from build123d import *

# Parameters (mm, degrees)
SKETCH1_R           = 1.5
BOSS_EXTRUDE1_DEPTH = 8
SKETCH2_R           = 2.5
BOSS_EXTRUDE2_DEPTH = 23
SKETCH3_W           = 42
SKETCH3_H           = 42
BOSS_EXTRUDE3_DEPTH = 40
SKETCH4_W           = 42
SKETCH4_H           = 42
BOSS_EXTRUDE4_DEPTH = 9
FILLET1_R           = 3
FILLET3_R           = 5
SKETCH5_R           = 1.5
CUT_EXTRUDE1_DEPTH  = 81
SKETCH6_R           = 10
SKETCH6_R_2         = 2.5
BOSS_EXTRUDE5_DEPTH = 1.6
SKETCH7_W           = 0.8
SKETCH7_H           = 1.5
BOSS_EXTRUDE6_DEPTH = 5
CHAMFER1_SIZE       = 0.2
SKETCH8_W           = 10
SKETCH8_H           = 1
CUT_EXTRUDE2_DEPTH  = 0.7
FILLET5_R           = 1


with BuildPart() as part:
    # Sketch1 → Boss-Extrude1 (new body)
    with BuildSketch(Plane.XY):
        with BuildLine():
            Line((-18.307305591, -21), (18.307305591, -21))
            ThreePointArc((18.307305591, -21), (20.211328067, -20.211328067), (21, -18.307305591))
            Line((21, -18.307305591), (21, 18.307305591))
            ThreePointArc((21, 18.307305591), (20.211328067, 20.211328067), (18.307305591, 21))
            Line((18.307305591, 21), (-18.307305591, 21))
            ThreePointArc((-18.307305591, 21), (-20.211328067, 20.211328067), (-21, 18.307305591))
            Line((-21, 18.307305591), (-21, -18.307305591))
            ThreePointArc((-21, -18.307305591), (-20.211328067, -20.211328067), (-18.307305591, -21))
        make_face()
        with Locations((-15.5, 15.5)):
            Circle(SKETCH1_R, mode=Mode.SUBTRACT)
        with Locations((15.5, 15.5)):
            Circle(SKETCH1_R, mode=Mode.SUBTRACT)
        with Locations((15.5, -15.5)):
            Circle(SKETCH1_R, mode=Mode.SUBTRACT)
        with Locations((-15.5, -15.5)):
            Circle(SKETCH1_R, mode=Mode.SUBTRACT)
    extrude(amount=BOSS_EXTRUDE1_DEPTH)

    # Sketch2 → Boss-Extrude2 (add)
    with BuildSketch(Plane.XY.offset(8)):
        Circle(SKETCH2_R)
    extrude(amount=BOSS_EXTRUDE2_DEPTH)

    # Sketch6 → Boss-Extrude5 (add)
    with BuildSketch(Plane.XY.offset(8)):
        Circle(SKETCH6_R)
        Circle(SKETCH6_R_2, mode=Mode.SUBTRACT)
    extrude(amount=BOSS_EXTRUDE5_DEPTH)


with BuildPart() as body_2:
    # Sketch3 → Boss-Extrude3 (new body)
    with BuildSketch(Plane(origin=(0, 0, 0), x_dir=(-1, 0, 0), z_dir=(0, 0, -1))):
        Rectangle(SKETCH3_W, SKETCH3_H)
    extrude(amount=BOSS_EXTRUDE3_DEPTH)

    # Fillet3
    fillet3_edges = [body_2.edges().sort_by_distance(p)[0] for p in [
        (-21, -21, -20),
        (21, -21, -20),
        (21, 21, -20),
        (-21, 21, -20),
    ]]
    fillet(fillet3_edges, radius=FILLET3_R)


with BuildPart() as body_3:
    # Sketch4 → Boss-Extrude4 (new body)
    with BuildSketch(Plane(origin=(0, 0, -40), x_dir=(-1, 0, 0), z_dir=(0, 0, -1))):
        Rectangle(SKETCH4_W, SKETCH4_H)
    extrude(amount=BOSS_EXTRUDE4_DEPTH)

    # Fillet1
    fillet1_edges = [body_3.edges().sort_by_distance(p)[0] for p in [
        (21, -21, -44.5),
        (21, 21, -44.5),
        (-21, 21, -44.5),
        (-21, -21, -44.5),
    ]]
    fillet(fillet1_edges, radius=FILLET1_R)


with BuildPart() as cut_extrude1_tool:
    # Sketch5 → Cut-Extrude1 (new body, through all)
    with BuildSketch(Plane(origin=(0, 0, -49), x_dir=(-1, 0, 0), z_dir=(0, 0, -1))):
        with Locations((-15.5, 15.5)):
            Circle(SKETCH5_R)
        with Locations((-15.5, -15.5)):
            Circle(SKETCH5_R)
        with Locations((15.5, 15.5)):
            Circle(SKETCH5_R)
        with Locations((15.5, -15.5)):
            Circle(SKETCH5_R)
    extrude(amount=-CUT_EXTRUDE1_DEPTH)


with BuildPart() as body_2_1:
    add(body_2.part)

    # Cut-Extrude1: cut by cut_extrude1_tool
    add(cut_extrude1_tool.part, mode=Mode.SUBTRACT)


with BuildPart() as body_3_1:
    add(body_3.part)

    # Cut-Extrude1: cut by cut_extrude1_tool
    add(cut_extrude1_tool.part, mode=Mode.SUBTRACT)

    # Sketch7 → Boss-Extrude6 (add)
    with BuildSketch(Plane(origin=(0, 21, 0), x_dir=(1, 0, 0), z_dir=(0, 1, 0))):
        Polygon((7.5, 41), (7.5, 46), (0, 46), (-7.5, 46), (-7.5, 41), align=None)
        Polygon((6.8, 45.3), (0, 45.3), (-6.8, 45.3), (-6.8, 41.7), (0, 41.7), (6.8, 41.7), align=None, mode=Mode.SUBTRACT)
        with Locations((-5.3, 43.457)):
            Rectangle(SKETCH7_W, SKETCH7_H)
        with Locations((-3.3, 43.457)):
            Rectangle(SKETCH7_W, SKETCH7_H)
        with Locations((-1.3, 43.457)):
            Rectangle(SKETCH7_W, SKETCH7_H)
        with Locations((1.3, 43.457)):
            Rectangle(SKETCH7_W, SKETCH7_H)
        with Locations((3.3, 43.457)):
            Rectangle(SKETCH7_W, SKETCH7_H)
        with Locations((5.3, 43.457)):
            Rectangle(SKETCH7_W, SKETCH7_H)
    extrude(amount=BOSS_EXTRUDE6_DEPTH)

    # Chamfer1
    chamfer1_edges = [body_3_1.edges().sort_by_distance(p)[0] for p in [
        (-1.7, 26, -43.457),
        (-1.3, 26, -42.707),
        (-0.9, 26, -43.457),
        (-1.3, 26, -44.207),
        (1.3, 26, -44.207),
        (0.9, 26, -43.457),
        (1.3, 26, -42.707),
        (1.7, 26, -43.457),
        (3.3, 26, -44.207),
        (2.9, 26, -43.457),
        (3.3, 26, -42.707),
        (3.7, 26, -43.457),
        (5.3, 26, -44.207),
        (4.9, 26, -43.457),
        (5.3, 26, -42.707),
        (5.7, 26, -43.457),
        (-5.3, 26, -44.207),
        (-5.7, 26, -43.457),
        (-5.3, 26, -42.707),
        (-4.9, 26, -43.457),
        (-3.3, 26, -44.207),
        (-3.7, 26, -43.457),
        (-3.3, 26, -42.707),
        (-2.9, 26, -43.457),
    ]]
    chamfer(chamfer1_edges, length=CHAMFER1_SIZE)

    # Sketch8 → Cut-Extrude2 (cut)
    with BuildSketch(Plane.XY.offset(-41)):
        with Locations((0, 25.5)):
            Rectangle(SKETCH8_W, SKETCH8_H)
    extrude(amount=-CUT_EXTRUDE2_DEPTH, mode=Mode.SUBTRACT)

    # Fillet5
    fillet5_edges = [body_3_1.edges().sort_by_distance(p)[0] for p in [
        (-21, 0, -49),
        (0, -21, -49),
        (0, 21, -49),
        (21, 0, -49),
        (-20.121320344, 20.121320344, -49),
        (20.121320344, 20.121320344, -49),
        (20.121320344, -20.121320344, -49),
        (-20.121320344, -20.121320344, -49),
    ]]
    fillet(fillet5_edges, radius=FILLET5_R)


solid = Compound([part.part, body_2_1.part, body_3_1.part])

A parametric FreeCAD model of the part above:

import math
import FreeCAD as App
import Part
import Sketcher

V = App.Vector


def edges_at(feature, points):
    """Names of the edges that pass closest to the given points."""
    edges = feature.Shape.Edges
    near = lambda p: min(range(len(edges)), key=lambda i: edges[i].distToShape(Part.Vertex(*p))[0])
    return sorted({f"Edge{near(p) + 1}" for p in points})

doc = App.newDocument("Part")
body = doc.addObject("PartDesign::Body", "Body")

# Sketch on XY plane
sketch1 = doc.addObject("Sketcher::SketchObject", "Sketch")
body.addObject(sketch1)
sketch1.AttachmentSupport = (doc.XY_Plane, [""])
sketch1.MapMode = "FlatFace"
sketch1.addGeometry([
    Part.LineSegment(V(-18.3, -21, 0), V(18.3, -21, 0)),  # 0
    Part.ArcOfCircle(Part.Circle(V(18.3, -18.3, 0), V(0, 0, 1), 2.7), math.radians(-90), math.radians(0)),  # 1
    Part.LineSegment(V(21, -18.3, 0), V(21, 18.3, 0)),  # 2
    Part.ArcOfCircle(Part.Circle(V(18.3, 18.3, 0), V(0, 0, 1), 2.7), math.radians(0), math.radians(90)),  # 3
    Part.LineSegment(V(18.3, 21, 0), V(-18.3, 21, 0)),  # 4
    Part.ArcOfCircle(Part.Circle(V(-18.3, 18.3, 0), V(0, 0, 1), 2.7), math.radians(90), math.radians(180)),  # 5
    Part.LineSegment(V(-21, 18.3, 0), V(-21, -18.3, 0)),  # 6
    Part.ArcOfCircle(Part.Circle(V(-18.3, -18.3, 0), V(0, 0, 1), 2.7), math.radians(-180), math.radians(-90)),  # 7
    Part.Circle(V(-15.5, -15.5, 0), V(0, 0, 1), 1.5),  # 8
    Part.Circle(V(15.5, -15.5, 0), V(0, 0, 1), 1.5),  # 9
    Part.Circle(V(-15.5, 15.5, 0), V(0, 0, 1), 1.5),  # 10
    Part.Circle(V(15.5, 15.5, 0), V(0, 0, 1), 1.5),  # 11
], False)
sketch1.addConstraint([
    Sketcher.Constraint("Tangent", 0, 2, 1, 1),
    Sketcher.Constraint("Tangent", 1, 2, 2, 1),
    Sketcher.Constraint("Tangent", 2, 2, 3, 1),
    Sketcher.Constraint("Tangent", 3, 2, 4, 1),
    Sketcher.Constraint("Tangent", 4, 2, 5, 1),
    Sketcher.Constraint("Tangent", 5, 2, 6, 1),
    Sketcher.Constraint("Tangent", 6, 2, 7, 1),
    Sketcher.Constraint("Tangent", 7, 2, 0, 1),
    Sketcher.Constraint("Horizontal", 0),
    Sketcher.Constraint("Vertical", 2),
    Sketcher.Constraint("Horizontal", 4),
    Sketcher.Constraint("Vertical", 6),
    Sketcher.Constraint("Equal", 1, 3),
    Sketcher.Constraint("Equal", 3, 5),
    Sketcher.Constraint("Equal", 5, 7),
    Sketcher.Constraint("Equal", 8, 9),
    Sketcher.Constraint("Equal", 9, 10),
    Sketcher.Constraint("Equal", 10, 11),
    Sketcher.Constraint("Symmetric", 1, 3, 5, 3, -1, 1),
    Sketcher.Constraint("Symmetric", 9, 3, 10, 3, -1, 1),
    Sketcher.Constraint("Symmetric", 8, 3, 11, 3, -1, 1),
    Sketcher.Constraint("Symmetric", 8, 3, 9, 3, -2),
    Sketcher.Constraint("Equal", 4, 2),
    Sketcher.Constraint("Diameter", 8, 3.0),
    Sketcher.Constraint("DistanceY", 0, 2, -1, 1, 21.0),
    Sketcher.Constraint("DistanceX", 8, 3, 9, 3, 31.0),
    Sketcher.Constraint("DistanceY", 8, 3, 10, 3, 31.0),
    Sketcher.Constraint("Radius", 1, 2.692694),
])
pad1 = doc.addObject("PartDesign::Pad", "Pad")
body.addObject(pad1)
pad1.Profile = sketch1
pad1.Length = 8

# Sketch on XY plane
sketch2 = doc.addObject("Sketcher::SketchObject", "Sketch001")
body.addObject(sketch2)
sketch2.AttachmentSupport = (doc.XY_Plane, [""])
sketch2.MapMode = "FlatFace"
sketch2.AttachmentOffset = App.Placement(V(0, 0, 8), App.Rotation())
sketch2.addGeometry(Part.Circle(V(0, 0, 0), V(0, 0, 1), 2.5), False)
sketch2.addConstraint([
    Sketcher.Constraint("Coincident", 0, 3, -1, 1),
    Sketcher.Constraint("Diameter", 0, 5.0),
])
pad2 = doc.addObject("PartDesign::Pad", "Pad001")
body.addObject(pad2)
pad2.Profile = sketch2
pad2.Length = 23

# Sketch on XY plane
sketch3 = doc.addObject("Sketcher::SketchObject", "Sketch002")
body.addObject(sketch3)
sketch3.AttachmentSupport = (doc.XY_Plane, [""])
sketch3.MapMode = "FlatFace"
sketch3.AttachmentOffset = App.Placement(V(0, 0, 8), App.Rotation())
sketch3.addGeometry([
    Part.Circle(V(0, 0, 0), V(0, 0, 1), 10),
    Part.Circle(V(0, 0, 0), V(0, 0, 1), 2.5),
], False)
sketch3.addConstraint([
    Sketcher.Constraint("Coincident", 0, 3, -1, 1),
    Sketcher.Constraint("Coincident", 1, 3, -1, 1),
    Sketcher.Constraint("Diameter", 0, 20.0),
    Sketcher.Constraint("Diameter", 1, 5.0),
])
pad3 = doc.addObject("PartDesign::Pad", "Pad002")
body.addObject(pad3)
pad3.Profile = sketch3
pad3.Length = 1.6
body2 = doc.addObject("PartDesign::Body", "Body001")

# Sketch on XY plane
sketch4 = doc.addObject("Sketcher::SketchObject", "Sketch003")
body2.addObject(sketch4)
sketch4.AttachmentSupport = (doc.getObject("XY_Plane001"), [""])
sketch4.MapMode = "FlatFace"
sketch4.addGeometry([
    Part.LineSegment(V(21, 21, 0), V(21, -21, 0)),
    Part.LineSegment(V(21, -21, 0), V(-21, -21, 0)),
    Part.LineSegment(V(-21, -21, 0), V(-21, 21, 0)),
    Part.LineSegment(V(-21, 21, 0), V(21, 21, 0)),
], False)
sketch4.addConstraint([
    Sketcher.Constraint("Coincident", 0, 2, 1, 1),
    Sketcher.Constraint("Coincident", 1, 2, 2, 1),
    Sketcher.Constraint("Coincident", 2, 2, 3, 1),
    Sketcher.Constraint("Coincident", 3, 2, 0, 1),
    Sketcher.Constraint("Vertical", 0),
    Sketcher.Constraint("Horizontal", 1),
    Sketcher.Constraint("Vertical", 2),
    Sketcher.Constraint("Horizontal", 3),
    Sketcher.Constraint("Symmetric", 0, 2, 2, 2, -1, 1),
    Sketcher.Constraint("Equal", 3, 0),
    Sketcher.Constraint("DistanceX", 1, 2, 1, 1, 42.0),
])
pad4 = doc.addObject("PartDesign::Pad", "Pad003")
body2.addObject(pad4)
pad4.Profile = sketch4
pad4.Length = 40
pad4.Reversed = True
doc.recompute()

fillet = doc.addObject("PartDesign::Fillet", "Fillet")
body2.addObject(fillet)
fillet.Base = (pad4, edges_at(pad4, [
    (-21, -21, -20),
    (21, -21, -20),
    (21, 21, -20),
    (-21, 21, -20),
]))
fillet.Radius = 5
body3 = doc.addObject("PartDesign::Body", "Body002")

# Sketch on XY plane
sketch5 = doc.addObject("Sketcher::SketchObject", "Sketch004")
body3.addObject(sketch5)
sketch5.AttachmentSupport = (doc.getObject("XY_Plane002"), [""])
sketch5.MapMode = "FlatFace"
sketch5.AttachmentOffset = App.Placement(V(0, 0, -40), App.Rotation())
sketch5.addGeometry([
    Part.LineSegment(V(21, 21, 0), V(21, -21, 0)),
    Part.LineSegment(V(21, -21, 0), V(-21, -21, 0)),
    Part.LineSegment(V(-21, -21, 0), V(-21, 21, 0)),
    Part.LineSegment(V(-21, 21, 0), V(21, 21, 0)),
], False)
sketch5.addConstraint([
    Sketcher.Constraint("Coincident", 0, 2, 1, 1),
    Sketcher.Constraint("Coincident", 1, 2, 2, 1),
    Sketcher.Constraint("Coincident", 2, 2, 3, 1),
    Sketcher.Constraint("Coincident", 3, 2, 0, 1),
    Sketcher.Constraint("Vertical", 0),
    Sketcher.Constraint("Horizontal", 1),
    Sketcher.Constraint("Vertical", 2),
    Sketcher.Constraint("Horizontal", 3),
    Sketcher.Constraint("Symmetric", 0, 2, 2, 2, -1, 1),
    Sketcher.Constraint("Equal", 3, 0),
    Sketcher.Constraint("DistanceX", 1, 2, 1, 1, 42.0),
])
pad5 = doc.addObject("PartDesign::Pad", "Pad004")
body3.addObject(pad5)
pad5.Profile = sketch5
pad5.Length = 9
pad5.Reversed = True
doc.recompute()

fillet2 = doc.addObject("PartDesign::Fillet", "Fillet001")
body3.addObject(fillet2)
fillet2.Base = (pad5, edges_at(pad5, [
    (21, -21, -44.5),
    (21, 21, -44.5),
    (-21, 21, -44.5),
    (-21, -21, -44.5),
]))
fillet2.Radius = 3
body4 = doc.addObject("PartDesign::Body", "Body003")
body4.AllowCompound = True

# Sketch on XY plane
sketch6 = doc.addObject("Sketcher::SketchObject", "Sketch005")
body4.addObject(sketch6)
sketch6.AttachmentSupport = (doc.getObject("XY_Plane003"), [""])
sketch6.MapMode = "FlatFace"
sketch6.AttachmentOffset = App.Placement(V(0, 0, -49), App.Rotation())
sketch6.addGeometry([
    Part.Circle(V(15.5, 15.5, 0), V(0, 0, 1), 1.5),
    Part.Circle(V(15.5, -15.5, 0), V(0, 0, 1), 1.5),
    Part.Circle(V(-15.5, 15.5, 0), V(0, 0, 1), 1.5),
    Part.Circle(V(-15.5, -15.5, 0), V(0, 0, 1), 1.5),
], False)
sketch6.addConstraint([
    Sketcher.Constraint("Equal", 0, 1),
    Sketcher.Constraint("Equal", 1, 2),
    Sketcher.Constraint("Equal", 2, 3),
    Sketcher.Constraint("Symmetric", 1, 3, 2, 3, -1, 1),
    Sketcher.Constraint("Symmetric", 0, 3, 3, 3, -1, 1),
    Sketcher.Constraint("Symmetric", 0, 3, 2, 3, -2),
    Sketcher.Constraint("Diameter", 0, 3.0),
    Sketcher.Constraint("DistanceY", 1, 3, 0, 3, 31.0),
    Sketcher.Constraint("DistanceX", 2, 3, 0, 3, 31.0),
])
pad6 = doc.addObject("PartDesign::Pad", "Pad005")
body4.addObject(pad6)
pad6.Profile = sketch6
pad6.Length = 81
doc.recompute()

body5 = doc.addObject("PartDesign::Body", "Body004")
body5.BaseFeature = body4
boolean = doc.addObject("PartDesign::Boolean", "Boolean")
body2.addObject(boolean)
boolean.Type = "Cut"
boolean.addObjects([body5])
doc.recompute()

boolean2 = doc.addObject("PartDesign::Boolean", "Boolean001")
body3.addObject(boolean2)
boolean2.Type = "Cut"
boolean2.addObjects([body4])

# Sketch on XZ plane
sketch7 = doc.addObject("Sketcher::SketchObject", "Sketch006")
body3.addObject(sketch7)
sketch7.AttachmentSupport = (doc.getObject("XZ_Plane002"), [""])
sketch7.MapMode = "FlatFace"
sketch7.AttachmentOffset = App.Placement(V(0, 0, -21), App.Rotation())
sketch7.addGeometry([
    Part.LineSegment(V(7.5, -41, 0), V(7.5, -46, 0)),  # 0
    Part.LineSegment(V(7.5, -46, 0), V(-7.5, -46, 0)),  # 1
    Part.LineSegment(V(-7.5, -46, 0), V(-7.5, -41, 0)),  # 2
    Part.LineSegment(V(-7.5, -41, 0), V(7.5, -41, 0)),  # 3
    Part.LineSegment(V(-6.8, -45.3, 0), V(6.8, -45.3, 0)),  # 4
    Part.LineSegment(V(6.8, -45.3, 0), V(6.8, -41.7, 0)),  # 5
    Part.LineSegment(V(6.8, -41.7, 0), V(-6.8, -41.7, 0)),  # 6
    Part.LineSegment(V(-6.8, -41.7, 0), V(-6.8, -45.3, 0)),  # 7
    Part.LineSegment(V(-5.7, -44.2, 0), V(-5.7, -42.7, 0)),  # 8
    Part.LineSegment(V(-5.7, -42.7, 0), V(-4.9, -42.7, 0)),  # 9
    Part.LineSegment(V(-4.9, -42.7, 0), V(-4.9, -44.2, 0)),  # 10
    Part.LineSegment(V(-4.9, -44.2, 0), V(-5.7, -44.2, 0)),  # 11
    Part.LineSegment(V(-3.7, -44.2, 0), V(-3.7, -42.7, 0)),  # 12
    Part.LineSegment(V(-3.7, -42.7, 0), V(-2.9, -42.7, 0)),  # 13
    Part.LineSegment(V(-2.9, -42.7, 0), V(-2.9, -44.2, 0)),  # 14
    Part.LineSegment(V(-2.9, -44.2, 0), V(-3.7, -44.2, 0)),  # 15
    Part.LineSegment(V(-1.7, -44.2, 0), V(-1.7, -42.7, 0)),  # 16
    Part.LineSegment(V(-1.7, -42.7, 0), V(-0.9, -42.7, 0)),  # 17
    Part.LineSegment(V(-0.9, -42.7, 0), V(-0.9, -44.2, 0)),  # 18
    Part.LineSegment(V(-0.9, -44.2, 0), V(-1.7, -44.2, 0)),  # 19
    Part.LineSegment(V(0.9, -44.2, 0), V(0.9, -42.7, 0)),  # 20
    Part.LineSegment(V(0.9, -42.7, 0), V(1.7, -42.7, 0)),  # 21
    Part.LineSegment(V(1.7, -42.7, 0), V(1.7, -44.2, 0)),  # 22
    Part.LineSegment(V(1.7, -44.2, 0), V(0.9, -44.2, 0)),  # 23
    Part.LineSegment(V(2.9, -44.2, 0), V(2.9, -42.7, 0)),  # 24
    Part.LineSegment(V(2.9, -42.7, 0), V(3.7, -42.7, 0)),  # 25
    Part.LineSegment(V(3.7, -42.7, 0), V(3.7, -44.2, 0)),  # 26
    Part.LineSegment(V(3.7, -44.2, 0), V(2.9, -44.2, 0)),  # 27
    Part.LineSegment(V(4.9, -44.2, 0), V(4.9, -42.7, 0)),  # 28
    Part.LineSegment(V(4.9, -42.7, 0), V(5.7, -42.7, 0)),  # 29
    Part.LineSegment(V(5.7, -42.7, 0), V(5.7, -44.2, 0)),  # 30
    Part.LineSegment(V(5.7, -44.2, 0), V(4.9, -44.2, 0)),  # 31
], False)
sketch7.addConstraint([
    Sketcher.Constraint("Coincident", 0, 2, 1, 1),
    Sketcher.Constraint("Coincident", 1, 2, 2, 1),
    Sketcher.Constraint("Coincident", 2, 2, 3, 1),
    Sketcher.Constraint("Coincident", 3, 2, 0, 1),
    Sketcher.Constraint("Coincident", 4, 2, 5, 1),
    Sketcher.Constraint("Coincident", 5, 2, 6, 1),
    Sketcher.Constraint("Coincident", 6, 2, 7, 1),
    Sketcher.Constraint("Coincident", 7, 2, 4, 1),
    Sketcher.Constraint("Coincident", 8, 2, 9, 1),
    Sketcher.Constraint("Coincident", 9, 2, 10, 1),
    Sketcher.Constraint("Coincident", 10, 2, 11, 1),
    Sketcher.Constraint("Coincident", 11, 2, 8, 1),
    Sketcher.Constraint("Coincident", 12, 2, 13, 1),
    Sketcher.Constraint("Coincident", 13, 2, 14, 1),
    Sketcher.Constraint("Coincident", 14, 2, 15, 1),
    Sketcher.Constraint("Coincident", 15, 2, 12, 1),
    Sketcher.Constraint("Coincident", 16, 2, 17, 1),
    Sketcher.Constraint("Coincident", 17, 2, 18, 1),
    Sketcher.Constraint("Coincident", 18, 2, 19, 1),
    Sketcher.Constraint("Coincident", 19, 2, 16, 1),
    Sketcher.Constraint("Coincident", 20, 2, 21, 1),
    Sketcher.Constraint("Coincident", 21, 2, 22, 1),
    Sketcher.Constraint("Coincident", 22, 2, 23, 1),
    Sketcher.Constraint("Coincident", 23, 2, 20, 1),
    Sketcher.Constraint("Coincident", 24, 2, 25, 1),
    Sketcher.Constraint("Coincident", 25, 2, 26, 1),
    Sketcher.Constraint("Coincident", 26, 2, 27, 1),
    Sketcher.Constraint("Coincident", 27, 2, 24, 1),
    Sketcher.Constraint("Coincident", 28, 2, 29, 1),
    Sketcher.Constraint("Coincident", 29, 2, 30, 1),
    Sketcher.Constraint("Coincident", 30, 2, 31, 1),
    Sketcher.Constraint("Coincident", 31, 2, 28, 1),
    Sketcher.Constraint("Vertical", 0),
    Sketcher.Constraint("Horizontal", 1),
    Sketcher.Constraint("Vertical", 2),
    Sketcher.Constraint("Horizontal", 3),
    Sketcher.Constraint("Horizontal", 4),
    Sketcher.Constraint("Vertical", 5),
    Sketcher.Constraint("Horizontal", 6),
    Sketcher.Constraint("Vertical", 7),
    Sketcher.Constraint("Vertical", 8),
    Sketcher.Constraint("Horizontal", 9),
    Sketcher.Constraint("Vertical", 10),
    Sketcher.Constraint("Horizontal", 11),
    Sketcher.Constraint("Vertical", 12),
    Sketcher.Constraint("Horizontal", 13),
    Sketcher.Constraint("Vertical", 14),
    Sketcher.Constraint("Horizontal", 15),
    Sketcher.Constraint("Vertical", 16),
    Sketcher.Constraint("Horizontal", 17),
    Sketcher.Constraint("Vertical", 18),
    Sketcher.Constraint("Horizontal", 19),
    Sketcher.Constraint("Vertical", 20),
    Sketcher.Constraint("Horizontal", 21),
    Sketcher.Constraint("Vertical", 22),
    Sketcher.Constraint("Horizontal", 23),
    Sketcher.Constraint("Vertical", 24),
    Sketcher.Constraint("Horizontal", 25),
    Sketcher.Constraint("Vertical", 26),
    Sketcher.Constraint("Horizontal", 27),
    Sketcher.Constraint("Vertical", 28),
    Sketcher.Constraint("Horizontal", 29),
    Sketcher.Constraint("Vertical", 30),
    Sketcher.Constraint("Horizontal", 31),
    Sketcher.Constraint("Symmetric", 17, 2, 20, 2, -2),
    Sketcher.Constraint("Symmetric", 19, 2, 22, 2, -2),
    Sketcher.Constraint("Symmetric", 13, 2, 24, 2, -2),
    Sketcher.Constraint("Symmetric", 15, 2, 26, 2, -2),
    Sketcher.Constraint("Symmetric", 9, 2, 28, 2, -2),
    Sketcher.Constraint("Symmetric", 11, 2, 30, 2, -2),
    Sketcher.Constraint("Horizontal", 9, 2, 12, 2),
    Sketcher.Constraint("Horizontal", 11, 2, 14, 2),
    Sketcher.Constraint("Horizontal", 13, 2, 16, 2),
    Sketcher.Constraint("Horizontal", 15, 2, 18, 2),
    Sketcher.Constraint("Equal", 11, 13),
    Sketcher.Constraint("Equal", 15, 17),
    Sketcher.Constraint("DistanceX", 1, 2, 1, 1, 15.0),
    Sketcher.Constraint("DistanceY", 0, 2, 0, 1, 5.0),
    Sketcher.Constraint("DistanceX", 4, 1, 4, 2, 13.6),
    Sketcher.Constraint("DistanceX", 9, 1, 9, 2, 0.8),
    Sketcher.Constraint("DistanceY", 5, 1, 5, 2, 3.6),
    Sketcher.Constraint("DistanceY", 8, 1, 8, 2, 1.5),
    Sketcher.Constraint("DistanceY", 0, 2, -1, 1, 46.0),
    Sketcher.Constraint("DistanceX", 8, 2, 12, 2, 2.0),
    Sketcher.Constraint("DistanceX", 12, 2, 16, 2, 2.0),
    Sketcher.Constraint("DistanceX", -1, 1, 0, 2, 7.5),
    Sketcher.Constraint("DistanceX", -1, 1, 4, 2, 6.8),
    Sketcher.Constraint("DistanceY", 4, 2, -1, 1, 45.3),
    Sketcher.Constraint("DistanceX", 8, 2, -1, 1, 5.7),
    Sketcher.Constraint("DistanceY", 8, 2, -1, 1, 42.707),
])
pad7 = doc.addObject("PartDesign::Pad", "Pad006")
body3.addObject(pad7)
pad7.Profile = sketch7
pad7.Length = 5
pad7.Reversed = True
doc.recompute()

chamfer = doc.addObject("PartDesign::Chamfer", "Chamfer")
body3.addObject(chamfer)
chamfer.Base = (pad7, edges_at(pad7, [
    (-1.7, 26, -43.457),
    (-1.3, 26, -42.707),
    (-0.9, 26, -43.457),
    (-1.3, 26, -44.207),
    (1.3, 26, -44.207),
    (0.9, 26, -43.457),
    (1.3, 26, -42.707),
    (1.7, 26, -43.457),
    (3.3, 26, -44.207),
    (2.9, 26, -43.457),
    (3.3, 26, -42.707),
    (3.7, 26, -43.457),
    (5.3, 26, -44.207),
    (4.9, 26, -43.457),
    (5.3, 26, -42.707),
    (5.7, 26, -43.457),
    (-5.3, 26, -44.207),
    (-5.7, 26, -43.457),
    (-5.3, 26, -42.707),
    (-4.9, 26, -43.457),
    (-3.3, 26, -44.207),
    (-3.7, 26, -43.457),
    (-3.3, 26, -42.707),
    (-2.9, 26, -43.457),
]))
chamfer.Size = 0.2

# Sketch on XY plane
sketch8 = doc.addObject("Sketcher::SketchObject", "Sketch007")
body3.addObject(sketch8)
sketch8.AttachmentSupport = (doc.getObject("XY_Plane002"), [""])
sketch8.MapMode = "FlatFace"
sketch8.AttachmentOffset = App.Placement(V(0, 0, -41), App.Rotation())
sketch8.addGeometry([
    Part.LineSegment(V(-5, 26, 0), V(-5, 25, 0)),
    Part.LineSegment(V(-5, 25, 0), V(5, 25, 0)),
    Part.LineSegment(V(5, 25, 0), V(5, 26, 0)),
    Part.LineSegment(V(5, 26, 0), V(-5, 26, 0)),
], False)
sketch8.addConstraint([
    Sketcher.Constraint("Coincident", 0, 2, 1, 1),
    Sketcher.Constraint("Coincident", 1, 2, 2, 1),
    Sketcher.Constraint("Coincident", 2, 2, 3, 1),
    Sketcher.Constraint("Coincident", 3, 2, 0, 1),
    Sketcher.Constraint("Vertical", 0),
    Sketcher.Constraint("Horizontal", 1),
    Sketcher.Constraint("Vertical", 2),
    Sketcher.Constraint("Horizontal", 3),
    Sketcher.Constraint("DistanceX", 1, 1, 1, 2, 10.0),
    Sketcher.Constraint("DistanceY", 0, 2, 0, 1, 1.0),
    Sketcher.Constraint("DistanceX", 0, 2, -1, 1, 5.0),
    Sketcher.Constraint("DistanceY", -1, 1, 0, 2, 25.0),
])
pocket1 = doc.addObject("PartDesign::Pocket", "Pocket")
body3.addObject(pocket1)
pocket1.Profile = sketch8
pocket1.Length = 0.7
doc.recompute()

fillet3 = doc.addObject("PartDesign::Fillet", "Fillet002")
body3.addObject(fillet3)
fillet3.Base = (pocket1, edges_at(pocket1, [
    (-21, 0, -49),
    (0, -21, -49),
    (0, 21, -49),
    (21, 0, -49),
    (-20.121, 20.121, -49),
    (20.121, 20.121, -49),
    (20.121, -20.121, -49),
    (-20.121, -20.121, -49),
]))
fillet3.Radius = 1

doc.recompute()
